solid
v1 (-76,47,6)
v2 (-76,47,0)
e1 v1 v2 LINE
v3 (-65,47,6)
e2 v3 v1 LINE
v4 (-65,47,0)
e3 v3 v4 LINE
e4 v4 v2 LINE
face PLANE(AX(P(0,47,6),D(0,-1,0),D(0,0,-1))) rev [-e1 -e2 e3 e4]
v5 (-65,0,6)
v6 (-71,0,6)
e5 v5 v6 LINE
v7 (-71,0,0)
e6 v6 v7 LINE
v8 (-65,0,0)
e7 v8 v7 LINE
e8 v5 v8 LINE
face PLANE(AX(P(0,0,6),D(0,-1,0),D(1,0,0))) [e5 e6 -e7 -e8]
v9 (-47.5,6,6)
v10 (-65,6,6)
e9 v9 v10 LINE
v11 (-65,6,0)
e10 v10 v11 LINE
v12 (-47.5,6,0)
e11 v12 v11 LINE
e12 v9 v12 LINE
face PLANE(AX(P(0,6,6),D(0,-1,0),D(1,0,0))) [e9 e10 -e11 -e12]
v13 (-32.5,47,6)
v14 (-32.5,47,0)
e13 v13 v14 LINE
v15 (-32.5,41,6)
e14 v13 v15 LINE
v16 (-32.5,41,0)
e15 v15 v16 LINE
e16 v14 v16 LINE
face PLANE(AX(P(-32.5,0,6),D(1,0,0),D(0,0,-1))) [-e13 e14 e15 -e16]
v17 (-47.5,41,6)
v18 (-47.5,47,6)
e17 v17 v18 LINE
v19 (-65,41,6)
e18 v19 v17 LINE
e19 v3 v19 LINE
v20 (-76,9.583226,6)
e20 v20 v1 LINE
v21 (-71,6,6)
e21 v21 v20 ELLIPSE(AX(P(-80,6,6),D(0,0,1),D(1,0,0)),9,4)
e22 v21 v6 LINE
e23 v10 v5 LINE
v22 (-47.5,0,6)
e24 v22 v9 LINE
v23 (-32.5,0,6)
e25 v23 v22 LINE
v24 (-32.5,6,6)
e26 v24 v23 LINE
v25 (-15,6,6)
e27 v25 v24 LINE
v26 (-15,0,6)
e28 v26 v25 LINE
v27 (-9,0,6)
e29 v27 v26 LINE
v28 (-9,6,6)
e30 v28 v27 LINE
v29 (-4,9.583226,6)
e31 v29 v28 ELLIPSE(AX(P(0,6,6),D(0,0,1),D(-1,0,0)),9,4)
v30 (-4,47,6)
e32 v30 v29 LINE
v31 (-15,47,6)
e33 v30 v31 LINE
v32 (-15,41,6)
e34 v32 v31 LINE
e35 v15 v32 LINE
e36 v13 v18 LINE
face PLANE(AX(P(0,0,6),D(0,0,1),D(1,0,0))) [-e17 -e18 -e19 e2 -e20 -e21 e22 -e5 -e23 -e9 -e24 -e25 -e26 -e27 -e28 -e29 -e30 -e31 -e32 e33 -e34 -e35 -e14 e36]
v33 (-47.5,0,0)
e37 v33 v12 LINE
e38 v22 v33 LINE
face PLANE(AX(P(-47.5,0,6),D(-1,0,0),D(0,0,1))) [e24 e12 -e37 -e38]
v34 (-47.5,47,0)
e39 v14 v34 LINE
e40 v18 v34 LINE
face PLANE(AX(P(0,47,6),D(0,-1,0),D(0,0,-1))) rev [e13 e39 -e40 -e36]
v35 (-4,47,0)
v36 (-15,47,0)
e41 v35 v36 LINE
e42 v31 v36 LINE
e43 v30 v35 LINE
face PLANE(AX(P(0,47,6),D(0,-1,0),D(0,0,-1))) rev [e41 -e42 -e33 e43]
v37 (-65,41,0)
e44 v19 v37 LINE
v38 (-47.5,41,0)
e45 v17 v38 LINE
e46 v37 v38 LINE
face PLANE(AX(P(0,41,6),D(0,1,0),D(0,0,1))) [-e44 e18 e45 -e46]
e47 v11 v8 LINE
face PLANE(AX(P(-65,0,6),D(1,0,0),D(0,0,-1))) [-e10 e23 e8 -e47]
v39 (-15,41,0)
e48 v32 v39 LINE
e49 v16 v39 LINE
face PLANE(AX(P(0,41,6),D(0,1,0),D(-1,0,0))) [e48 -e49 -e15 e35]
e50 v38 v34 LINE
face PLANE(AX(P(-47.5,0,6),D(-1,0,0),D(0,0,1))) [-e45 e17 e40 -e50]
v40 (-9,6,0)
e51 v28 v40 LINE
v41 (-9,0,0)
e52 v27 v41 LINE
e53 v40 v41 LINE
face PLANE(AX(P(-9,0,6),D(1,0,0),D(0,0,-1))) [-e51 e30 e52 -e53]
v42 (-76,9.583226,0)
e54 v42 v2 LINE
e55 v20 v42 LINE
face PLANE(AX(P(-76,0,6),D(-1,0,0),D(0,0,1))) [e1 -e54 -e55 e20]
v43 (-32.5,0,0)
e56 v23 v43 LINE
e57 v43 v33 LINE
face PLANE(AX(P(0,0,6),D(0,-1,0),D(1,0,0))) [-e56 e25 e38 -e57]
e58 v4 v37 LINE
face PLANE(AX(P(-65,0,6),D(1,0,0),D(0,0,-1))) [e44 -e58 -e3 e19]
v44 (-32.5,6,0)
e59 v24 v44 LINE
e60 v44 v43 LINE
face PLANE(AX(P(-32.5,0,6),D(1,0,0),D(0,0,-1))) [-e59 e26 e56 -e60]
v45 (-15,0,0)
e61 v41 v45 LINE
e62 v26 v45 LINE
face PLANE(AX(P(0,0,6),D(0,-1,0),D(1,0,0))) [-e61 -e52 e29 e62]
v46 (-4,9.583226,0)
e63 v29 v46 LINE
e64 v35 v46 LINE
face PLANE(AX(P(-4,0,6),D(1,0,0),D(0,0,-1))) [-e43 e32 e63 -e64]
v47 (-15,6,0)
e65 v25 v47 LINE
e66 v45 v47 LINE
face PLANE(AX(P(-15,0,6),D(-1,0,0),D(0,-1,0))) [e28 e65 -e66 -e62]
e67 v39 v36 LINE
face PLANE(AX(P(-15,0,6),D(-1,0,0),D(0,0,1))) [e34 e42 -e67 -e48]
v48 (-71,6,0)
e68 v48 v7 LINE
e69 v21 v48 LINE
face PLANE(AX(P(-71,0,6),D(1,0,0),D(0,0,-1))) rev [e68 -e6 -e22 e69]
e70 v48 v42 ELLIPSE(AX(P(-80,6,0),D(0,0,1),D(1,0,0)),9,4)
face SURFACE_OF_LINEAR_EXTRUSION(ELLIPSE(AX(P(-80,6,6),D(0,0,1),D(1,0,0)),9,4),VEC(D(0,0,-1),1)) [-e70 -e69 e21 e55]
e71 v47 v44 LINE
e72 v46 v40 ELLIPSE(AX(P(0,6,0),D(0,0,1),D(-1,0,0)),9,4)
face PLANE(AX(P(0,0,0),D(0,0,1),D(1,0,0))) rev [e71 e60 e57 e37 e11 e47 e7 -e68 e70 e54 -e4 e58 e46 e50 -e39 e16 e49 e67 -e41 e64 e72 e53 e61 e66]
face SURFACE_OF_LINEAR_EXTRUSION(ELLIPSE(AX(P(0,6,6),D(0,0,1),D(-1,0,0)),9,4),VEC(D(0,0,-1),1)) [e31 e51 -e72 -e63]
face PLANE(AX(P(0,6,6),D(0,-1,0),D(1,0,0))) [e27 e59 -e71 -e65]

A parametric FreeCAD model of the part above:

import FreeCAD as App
import Part
import Sketcher
from FreeCAD import Vector
Q = App.Units.Quantity

doc = App.newDocument("Part")
params = doc.addObject("Spreadsheet::Sheet", "Params")
for row, (alias, value) in enumerate([
    ("sketch1_width", "6 mm"),
    ("sketch1_width2", "11 mm"),
    ("sketch1_width3", "15 mm"),
    ("sketch1_width4", "11 mm"),
    ("sketch1_width5", "6 mm"),
    ("pad1_length", "6 mm"),
], start=1):
    params.set(f"A{row}", alias)
    params.set(f"B{row}", "=" + value)
    params.setAlias(f"B{row}", alias)

body = doc.addObject("PartDesign::Body", "Body")

sketch1 = body.newObject("Sketcher::SketchObject", "Sketch")
sketch1.AttachmentSupport = (doc.getObject("XY_Plane"), [""])
sketch1.MapMode = "FlatFace"
sketch1.addGeometry([
    Part.LineSegment(Vector(-15, 0, 0), Vector(-9, 0, 0)),
    Part.LineSegment(Vector(-9, 0, 0), Vector(-9, 6, 0)),
    Part.BSplineCurve([Vector(-4, 9.583226, 0), Vector(-9, 8.480695, 0), Vector(-9, 6, 0)], [3, 3], [5.172942972, 6.283185307], False, 2, [1, 0.849836586, 1], False),
    Part.LineSegment(Vector(-4, 9.583226, 0), Vector(-4, 47, 0)),
    Part.LineSegment(Vector(-4, 47, 0), Vector(-15, 47, 0)),
    Part.LineSegment(Vector(-15, 47, 0), Vector(-15, 41, 0)),
    Part.LineSegment(Vector(-15, 41, 0), Vector(-32.5, 41, 0)),
    Part.LineSegment(Vector(-32.5, 41, 0), Vector(-32.5, 47, 0)),
    Part.LineSegment(Vector(-32.5, 47, 0), Vector(-47.5, 47, 0)),
    Part.LineSegment(Vector(-47.5, 47, 0), Vector(-47.5, 41, 0)),
    Part.LineSegment(Vector(-47.5, 41, 0), Vector(-65, 41, 0)),
    Part.LineSegment(Vector(-65, 41, 0), Vector(-65, 47, 0)),
    Part.LineSegment(Vector(-65, 47, 0), Vector(-76, 47, 0)),
    Part.LineSegment(Vector(-76, 47, 0), Vector(-76, 9.583226, 0)),
    Part.BSplineCurve([Vector(-71, 6, 0), Vector(-71, 8.480695, 0), Vector(-76, 9.583226, 0)], [3, 3], [0, 1.110242335], False, 2, [1, 0.849836586, 1], False),
    Part.LineSegment(Vector(-71, 6, 0), Vector(-71, 0, 0)),
    Part.LineSegment(Vector(-71, 0, 0), Vector(-65, 0, 0)),
    Part.LineSegment(Vector(-65, 0, 0), Vector(-65, 6, 0)),
    Part.LineSegment(Vector(-65, 6, 0), Vector(-47.5, 6, 0)),
    Part.LineSegment(Vector(-47.5, 6, 0), Vector(-47.5, 0, 0)),
    Part.LineSegment(Vector(-47.5, 0, 0), Vector(-32.5, 0, 0)),
    Part.LineSegment(Vector(-32.5, 0, 0), Vector(-32.5, 6, 0)),
    Part.LineSegment(Vector(-32.5, 6, 0), Vector(-15, 6, 0)),
    Part.LineSegment(Vector(-15, 6, 0), Vector(-15, 0, 0)),
], False)
sketch1.addConstraint([
    Sketcher.Constraint("Block", 2),
    Sketcher.Constraint("Block", 14),
    Sketcher.Constraint("Coincident", 0, 2, 1, 1),
    Sketcher.Constraint("Coincident", 1, 2, 2, 2),
    Sketcher.Constraint("Coincident", 2, 1, 3, 1),
    Sketcher.Constraint("Coincident", 3, 2, 4, 1),
    Sketcher.Constraint("Coincident", 4, 2, 5, 1),
    Sketcher.Constraint("Coincident", 5, 2, 6, 1),
    Sketcher.Constraint("Coincident", 6, 2, 7, 1),
    Sketcher.Constraint("Coincident", 7, 2, 8, 1),
    Sketcher.Constraint("Coincident", 8, 2, 9, 1),
    Sketcher.Constraint("Coincident", 9, 2, 10, 1),
    Sketcher.Constraint("Coincident", 10, 2, 11, 1),
    Sketcher.Constraint("Coincident", 11, 2, 12, 1),
    Sketcher.Constraint("Coincident", 12, 2, 13, 1),
    Sketcher.Constraint("Coincident", 13, 2, 14, 2),
    Sketcher.Constraint("Coincident", 14, 1, 15, 1),
    Sketcher.Constraint("Coincident", 15, 2, 16, 1),
    Sketcher.Constraint("Coincident", 16, 2, 17, 1),
    Sketcher.Constraint("Coincident", 17, 2, 18, 1),
    Sketcher.Constraint("Coincident", 18, 2, 19, 1),
    Sketcher.Constraint("Coincident", 19, 2, 20, 1),
    Sketcher.Constraint("Coincident", 20, 2, 21, 1),
    Sketcher.Constraint("Coincident", 21, 2, 22, 1),
    Sketcher.Constraint("Coincident", 22, 2, 23, 1),
    Sketcher.Constraint("Coincident", 23, 2, 0, 1),
    Sketcher.Constraint("Horizontal", 0),
    Sketcher.Constraint("Vertical", 1),
    Sketcher.Constraint("Vertical", 3),
    Sketcher.Constraint("Horizontal", 4),
    Sketcher.Constraint("Vertical", 5),
    Sketcher.Constraint("Horizontal", 6),
    Sketcher.Constraint("Vertical", 7),
    Sketcher.Constraint("Horizontal", 8),
    Sketcher.Constraint("Vertical", 9),
    Sketcher.Constraint("Horizontal", 10),
    Sketcher.Constraint("Vertical", 11),
    Sketcher.Constraint("Horizontal", 12),
    Sketcher.Constraint("Vertical", 13),
    Sketcher.Constraint("Vertical", 15),
    Sketcher.Constraint("Horizontal", 16),
    Sketcher.Constraint("Vertical", 17),
    Sketcher.Constraint("Horizontal", 18),
    Sketcher.Constraint("Vertical", 19),
    Sketcher.Constraint("Horizontal", 20),
    Sketcher.Constraint("Vertical", 21),
    Sketcher.Constraint("Horizontal", 22),
    Sketcher.Constraint("Vertical", 23),
    Sketcher.Constraint("PointOnObject", 0, 2, -1),
    Sketcher.Constraint("PointOnObject", 15, 2, -1),
    Sketcher.Constraint("PointOnObject", 19, 2, -1),
    Sketcher.Constraint("DistanceX", 0, 1, 0, 2, Q("6 mm")),
    Sketcher.Constraint("DistanceX", 4, 2, 4, 1, Q("11 mm")),
    Sketcher.Constraint("DistanceX", 8, 2, 8, 1, Q("15 mm")),
    Sketcher.Constraint("DistanceX", 12, 2, 12, 1, Q("11 mm")),
    Sketcher.Constraint("DistanceX", 16, 1, 16, 2, Q("6 mm")),
    Sketcher.Constraint("DistanceX", 20, 1, 20, 2, Q("15 mm")),
    Sketcher.Constraint("DistanceY", 5, 2, 5, 1, Q("6 mm")),
    Sketcher.Constraint("DistanceY", 7, 1, 7, 2, Q("6 mm")),
    Sketcher.Constraint("DistanceY", 9, 2, 9, 1, Q("6 mm")),
    Sketcher.Constraint("DistanceY", 11, 1, 11, 2, Q("6 mm")),
    Sketcher.Constraint("DistanceY", 17, 1, 17, 2, Q("6 mm")),
    Sketcher.Constraint("DistanceY", 21, 1, 21, 2, Q("6 mm")),
    Sketcher.Constraint("DistanceX", 6, 2, 6, 1, Q("17.5 mm")),
    Sketcher.Constraint("DistanceX", 18, 1, 18, 2, Q("17.5 mm")),
    Sketcher.Constraint("DistanceY", -1, 1, 3, 2, Q("47 mm")),
])
sketch1.setExpression("Constraints[51]", "Params.sketch1_width")
sketch1.setExpression("Constraints[52]", "Params.sketch1_width2")
sketch1.setExpression("Constraints[53]", "Params.sketch1_width3")
sketch1.setExpression("Constraints[54]", "Params.sketch1_width4")
sketch1.setExpression("Constraints[55]", "Params.sketch1_width5")
pad1 = body.newObject("PartDesign::Pad", "Pad")
pad1.Profile = sketch1
pad1.setExpression("Length", "Params.pad1_length")

doc.recompute()
